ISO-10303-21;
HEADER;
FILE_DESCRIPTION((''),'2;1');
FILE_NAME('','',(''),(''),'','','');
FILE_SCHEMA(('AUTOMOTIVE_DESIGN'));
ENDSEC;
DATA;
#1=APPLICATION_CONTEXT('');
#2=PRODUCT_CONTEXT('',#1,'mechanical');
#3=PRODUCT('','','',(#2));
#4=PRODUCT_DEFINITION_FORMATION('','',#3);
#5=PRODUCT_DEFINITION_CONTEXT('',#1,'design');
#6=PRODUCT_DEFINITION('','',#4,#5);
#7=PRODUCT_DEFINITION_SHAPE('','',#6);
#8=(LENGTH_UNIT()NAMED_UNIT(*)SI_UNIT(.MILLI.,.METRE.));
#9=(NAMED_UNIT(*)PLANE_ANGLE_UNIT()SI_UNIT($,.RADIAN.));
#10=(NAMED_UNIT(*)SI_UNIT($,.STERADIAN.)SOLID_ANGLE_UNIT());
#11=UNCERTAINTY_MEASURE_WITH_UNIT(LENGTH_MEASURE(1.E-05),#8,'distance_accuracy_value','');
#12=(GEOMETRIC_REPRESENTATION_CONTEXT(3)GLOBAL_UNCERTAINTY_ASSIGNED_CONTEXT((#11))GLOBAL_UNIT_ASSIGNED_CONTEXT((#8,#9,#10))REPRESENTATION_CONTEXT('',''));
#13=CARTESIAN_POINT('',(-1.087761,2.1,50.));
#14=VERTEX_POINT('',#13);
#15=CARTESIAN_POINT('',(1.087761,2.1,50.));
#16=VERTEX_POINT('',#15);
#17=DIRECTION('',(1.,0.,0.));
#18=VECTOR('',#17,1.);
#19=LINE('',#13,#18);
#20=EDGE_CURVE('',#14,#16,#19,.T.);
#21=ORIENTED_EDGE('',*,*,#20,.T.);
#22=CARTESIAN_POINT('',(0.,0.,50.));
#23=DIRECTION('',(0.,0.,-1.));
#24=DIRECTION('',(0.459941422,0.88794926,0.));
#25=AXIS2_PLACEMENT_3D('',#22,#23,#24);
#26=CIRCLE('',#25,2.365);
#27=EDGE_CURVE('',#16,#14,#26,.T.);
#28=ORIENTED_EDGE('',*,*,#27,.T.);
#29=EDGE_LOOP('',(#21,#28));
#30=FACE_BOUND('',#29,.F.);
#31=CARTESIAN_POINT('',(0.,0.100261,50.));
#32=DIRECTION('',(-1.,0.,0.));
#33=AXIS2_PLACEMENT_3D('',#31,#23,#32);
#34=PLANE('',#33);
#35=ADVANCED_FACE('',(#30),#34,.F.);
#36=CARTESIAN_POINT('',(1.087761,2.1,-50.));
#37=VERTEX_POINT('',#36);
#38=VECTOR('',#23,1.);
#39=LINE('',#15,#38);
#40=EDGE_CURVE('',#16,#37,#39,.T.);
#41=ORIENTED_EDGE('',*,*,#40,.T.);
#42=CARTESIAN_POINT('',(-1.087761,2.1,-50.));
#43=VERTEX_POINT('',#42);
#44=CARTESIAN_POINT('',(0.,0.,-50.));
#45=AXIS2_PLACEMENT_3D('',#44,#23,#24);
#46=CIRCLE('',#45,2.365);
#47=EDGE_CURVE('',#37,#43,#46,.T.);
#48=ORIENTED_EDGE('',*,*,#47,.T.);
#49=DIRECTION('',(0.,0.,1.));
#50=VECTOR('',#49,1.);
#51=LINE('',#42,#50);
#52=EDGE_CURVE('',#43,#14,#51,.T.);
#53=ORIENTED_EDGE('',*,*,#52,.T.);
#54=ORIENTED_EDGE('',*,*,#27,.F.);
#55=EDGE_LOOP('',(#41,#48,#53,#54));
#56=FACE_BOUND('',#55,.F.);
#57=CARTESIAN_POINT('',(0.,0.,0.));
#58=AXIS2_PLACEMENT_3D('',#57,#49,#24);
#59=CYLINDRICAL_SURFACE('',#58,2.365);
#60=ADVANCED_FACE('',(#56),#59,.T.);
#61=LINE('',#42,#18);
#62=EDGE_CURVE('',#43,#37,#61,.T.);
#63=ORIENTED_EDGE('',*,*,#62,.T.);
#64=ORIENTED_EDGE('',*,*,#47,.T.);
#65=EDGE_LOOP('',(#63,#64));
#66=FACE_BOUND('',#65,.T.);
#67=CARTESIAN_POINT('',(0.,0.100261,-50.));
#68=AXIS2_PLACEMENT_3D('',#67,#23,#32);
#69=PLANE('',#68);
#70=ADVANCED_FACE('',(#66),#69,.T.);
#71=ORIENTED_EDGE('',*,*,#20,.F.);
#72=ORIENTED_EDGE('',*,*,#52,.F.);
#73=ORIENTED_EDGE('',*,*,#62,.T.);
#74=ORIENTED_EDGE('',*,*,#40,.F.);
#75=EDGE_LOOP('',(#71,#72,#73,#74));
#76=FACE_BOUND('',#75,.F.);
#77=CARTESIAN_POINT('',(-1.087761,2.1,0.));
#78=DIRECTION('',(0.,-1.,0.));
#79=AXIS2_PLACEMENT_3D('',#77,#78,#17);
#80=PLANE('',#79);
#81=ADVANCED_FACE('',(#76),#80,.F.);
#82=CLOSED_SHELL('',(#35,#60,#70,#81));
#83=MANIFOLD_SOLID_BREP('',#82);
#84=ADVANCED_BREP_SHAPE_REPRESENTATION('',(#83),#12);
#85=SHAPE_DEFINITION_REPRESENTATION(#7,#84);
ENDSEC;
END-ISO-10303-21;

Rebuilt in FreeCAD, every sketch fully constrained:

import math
import FreeCAD as App
import Part
import Sketcher
from FreeCAD import Vector

doc = App.newDocument("Part")
params = doc.addObject("Spreadsheet::Sheet", "Params")
for row, (alias, value) in enumerate([
    ("pad1_length", "100 mm"),
], start=1):
    params.set(f"A{row}", alias)
    params.set(f"B{row}", "=" + value)
    params.setAlias(f"B{row}", alias)

body = doc.addObject("PartDesign::Body", "Body")

# Sketch on XY plane
sketch1 = doc.addObject("Sketcher::SketchObject", "Sketch")
body.addObject(sketch1)
sketch1.AttachmentSupport = (doc.XY_Plane, [""])
sketch1.MapMode = "FlatFace"
sketch1.addGeometry(Part.LineSegment(Vector(1.1, 2.1, 0), Vector(-1.1, 2.1, 0)), False)
sketch1.addGeometry(Part.ArcOfCircle(Part.Circle(Vector(0, 0, 0), Vector(0, 0, 1), 2.4), math.radians(117), math.radians(423)), False)
sketch1.addConstraint(Sketcher.Constraint("Coincident", 0, 1, 1, 2))
sketch1.addConstraint(Sketcher.Constraint("Coincident", 1, 1, 0, 2))
sketch1.addConstraint(Sketcher.Constraint("Horizontal", 0))
sketch1.addConstraint(Sketcher.Constraint("Coincident", 1, 3, -1, 1))
sketch1.addConstraint(Sketcher.Constraint("Radius", 1, 2.365))
sketch1.addConstraint(Sketcher.Constraint("DistanceY", -1, 1, 0, 1, 2.1))
pad1 = doc.addObject("PartDesign::Pad", "Pad")
body.addObject(pad1)
pad1.Profile = sketch1
pad1.setExpression("Length", "Params.pad1_length")
pad1.Midplane = True

doc.recompute()
